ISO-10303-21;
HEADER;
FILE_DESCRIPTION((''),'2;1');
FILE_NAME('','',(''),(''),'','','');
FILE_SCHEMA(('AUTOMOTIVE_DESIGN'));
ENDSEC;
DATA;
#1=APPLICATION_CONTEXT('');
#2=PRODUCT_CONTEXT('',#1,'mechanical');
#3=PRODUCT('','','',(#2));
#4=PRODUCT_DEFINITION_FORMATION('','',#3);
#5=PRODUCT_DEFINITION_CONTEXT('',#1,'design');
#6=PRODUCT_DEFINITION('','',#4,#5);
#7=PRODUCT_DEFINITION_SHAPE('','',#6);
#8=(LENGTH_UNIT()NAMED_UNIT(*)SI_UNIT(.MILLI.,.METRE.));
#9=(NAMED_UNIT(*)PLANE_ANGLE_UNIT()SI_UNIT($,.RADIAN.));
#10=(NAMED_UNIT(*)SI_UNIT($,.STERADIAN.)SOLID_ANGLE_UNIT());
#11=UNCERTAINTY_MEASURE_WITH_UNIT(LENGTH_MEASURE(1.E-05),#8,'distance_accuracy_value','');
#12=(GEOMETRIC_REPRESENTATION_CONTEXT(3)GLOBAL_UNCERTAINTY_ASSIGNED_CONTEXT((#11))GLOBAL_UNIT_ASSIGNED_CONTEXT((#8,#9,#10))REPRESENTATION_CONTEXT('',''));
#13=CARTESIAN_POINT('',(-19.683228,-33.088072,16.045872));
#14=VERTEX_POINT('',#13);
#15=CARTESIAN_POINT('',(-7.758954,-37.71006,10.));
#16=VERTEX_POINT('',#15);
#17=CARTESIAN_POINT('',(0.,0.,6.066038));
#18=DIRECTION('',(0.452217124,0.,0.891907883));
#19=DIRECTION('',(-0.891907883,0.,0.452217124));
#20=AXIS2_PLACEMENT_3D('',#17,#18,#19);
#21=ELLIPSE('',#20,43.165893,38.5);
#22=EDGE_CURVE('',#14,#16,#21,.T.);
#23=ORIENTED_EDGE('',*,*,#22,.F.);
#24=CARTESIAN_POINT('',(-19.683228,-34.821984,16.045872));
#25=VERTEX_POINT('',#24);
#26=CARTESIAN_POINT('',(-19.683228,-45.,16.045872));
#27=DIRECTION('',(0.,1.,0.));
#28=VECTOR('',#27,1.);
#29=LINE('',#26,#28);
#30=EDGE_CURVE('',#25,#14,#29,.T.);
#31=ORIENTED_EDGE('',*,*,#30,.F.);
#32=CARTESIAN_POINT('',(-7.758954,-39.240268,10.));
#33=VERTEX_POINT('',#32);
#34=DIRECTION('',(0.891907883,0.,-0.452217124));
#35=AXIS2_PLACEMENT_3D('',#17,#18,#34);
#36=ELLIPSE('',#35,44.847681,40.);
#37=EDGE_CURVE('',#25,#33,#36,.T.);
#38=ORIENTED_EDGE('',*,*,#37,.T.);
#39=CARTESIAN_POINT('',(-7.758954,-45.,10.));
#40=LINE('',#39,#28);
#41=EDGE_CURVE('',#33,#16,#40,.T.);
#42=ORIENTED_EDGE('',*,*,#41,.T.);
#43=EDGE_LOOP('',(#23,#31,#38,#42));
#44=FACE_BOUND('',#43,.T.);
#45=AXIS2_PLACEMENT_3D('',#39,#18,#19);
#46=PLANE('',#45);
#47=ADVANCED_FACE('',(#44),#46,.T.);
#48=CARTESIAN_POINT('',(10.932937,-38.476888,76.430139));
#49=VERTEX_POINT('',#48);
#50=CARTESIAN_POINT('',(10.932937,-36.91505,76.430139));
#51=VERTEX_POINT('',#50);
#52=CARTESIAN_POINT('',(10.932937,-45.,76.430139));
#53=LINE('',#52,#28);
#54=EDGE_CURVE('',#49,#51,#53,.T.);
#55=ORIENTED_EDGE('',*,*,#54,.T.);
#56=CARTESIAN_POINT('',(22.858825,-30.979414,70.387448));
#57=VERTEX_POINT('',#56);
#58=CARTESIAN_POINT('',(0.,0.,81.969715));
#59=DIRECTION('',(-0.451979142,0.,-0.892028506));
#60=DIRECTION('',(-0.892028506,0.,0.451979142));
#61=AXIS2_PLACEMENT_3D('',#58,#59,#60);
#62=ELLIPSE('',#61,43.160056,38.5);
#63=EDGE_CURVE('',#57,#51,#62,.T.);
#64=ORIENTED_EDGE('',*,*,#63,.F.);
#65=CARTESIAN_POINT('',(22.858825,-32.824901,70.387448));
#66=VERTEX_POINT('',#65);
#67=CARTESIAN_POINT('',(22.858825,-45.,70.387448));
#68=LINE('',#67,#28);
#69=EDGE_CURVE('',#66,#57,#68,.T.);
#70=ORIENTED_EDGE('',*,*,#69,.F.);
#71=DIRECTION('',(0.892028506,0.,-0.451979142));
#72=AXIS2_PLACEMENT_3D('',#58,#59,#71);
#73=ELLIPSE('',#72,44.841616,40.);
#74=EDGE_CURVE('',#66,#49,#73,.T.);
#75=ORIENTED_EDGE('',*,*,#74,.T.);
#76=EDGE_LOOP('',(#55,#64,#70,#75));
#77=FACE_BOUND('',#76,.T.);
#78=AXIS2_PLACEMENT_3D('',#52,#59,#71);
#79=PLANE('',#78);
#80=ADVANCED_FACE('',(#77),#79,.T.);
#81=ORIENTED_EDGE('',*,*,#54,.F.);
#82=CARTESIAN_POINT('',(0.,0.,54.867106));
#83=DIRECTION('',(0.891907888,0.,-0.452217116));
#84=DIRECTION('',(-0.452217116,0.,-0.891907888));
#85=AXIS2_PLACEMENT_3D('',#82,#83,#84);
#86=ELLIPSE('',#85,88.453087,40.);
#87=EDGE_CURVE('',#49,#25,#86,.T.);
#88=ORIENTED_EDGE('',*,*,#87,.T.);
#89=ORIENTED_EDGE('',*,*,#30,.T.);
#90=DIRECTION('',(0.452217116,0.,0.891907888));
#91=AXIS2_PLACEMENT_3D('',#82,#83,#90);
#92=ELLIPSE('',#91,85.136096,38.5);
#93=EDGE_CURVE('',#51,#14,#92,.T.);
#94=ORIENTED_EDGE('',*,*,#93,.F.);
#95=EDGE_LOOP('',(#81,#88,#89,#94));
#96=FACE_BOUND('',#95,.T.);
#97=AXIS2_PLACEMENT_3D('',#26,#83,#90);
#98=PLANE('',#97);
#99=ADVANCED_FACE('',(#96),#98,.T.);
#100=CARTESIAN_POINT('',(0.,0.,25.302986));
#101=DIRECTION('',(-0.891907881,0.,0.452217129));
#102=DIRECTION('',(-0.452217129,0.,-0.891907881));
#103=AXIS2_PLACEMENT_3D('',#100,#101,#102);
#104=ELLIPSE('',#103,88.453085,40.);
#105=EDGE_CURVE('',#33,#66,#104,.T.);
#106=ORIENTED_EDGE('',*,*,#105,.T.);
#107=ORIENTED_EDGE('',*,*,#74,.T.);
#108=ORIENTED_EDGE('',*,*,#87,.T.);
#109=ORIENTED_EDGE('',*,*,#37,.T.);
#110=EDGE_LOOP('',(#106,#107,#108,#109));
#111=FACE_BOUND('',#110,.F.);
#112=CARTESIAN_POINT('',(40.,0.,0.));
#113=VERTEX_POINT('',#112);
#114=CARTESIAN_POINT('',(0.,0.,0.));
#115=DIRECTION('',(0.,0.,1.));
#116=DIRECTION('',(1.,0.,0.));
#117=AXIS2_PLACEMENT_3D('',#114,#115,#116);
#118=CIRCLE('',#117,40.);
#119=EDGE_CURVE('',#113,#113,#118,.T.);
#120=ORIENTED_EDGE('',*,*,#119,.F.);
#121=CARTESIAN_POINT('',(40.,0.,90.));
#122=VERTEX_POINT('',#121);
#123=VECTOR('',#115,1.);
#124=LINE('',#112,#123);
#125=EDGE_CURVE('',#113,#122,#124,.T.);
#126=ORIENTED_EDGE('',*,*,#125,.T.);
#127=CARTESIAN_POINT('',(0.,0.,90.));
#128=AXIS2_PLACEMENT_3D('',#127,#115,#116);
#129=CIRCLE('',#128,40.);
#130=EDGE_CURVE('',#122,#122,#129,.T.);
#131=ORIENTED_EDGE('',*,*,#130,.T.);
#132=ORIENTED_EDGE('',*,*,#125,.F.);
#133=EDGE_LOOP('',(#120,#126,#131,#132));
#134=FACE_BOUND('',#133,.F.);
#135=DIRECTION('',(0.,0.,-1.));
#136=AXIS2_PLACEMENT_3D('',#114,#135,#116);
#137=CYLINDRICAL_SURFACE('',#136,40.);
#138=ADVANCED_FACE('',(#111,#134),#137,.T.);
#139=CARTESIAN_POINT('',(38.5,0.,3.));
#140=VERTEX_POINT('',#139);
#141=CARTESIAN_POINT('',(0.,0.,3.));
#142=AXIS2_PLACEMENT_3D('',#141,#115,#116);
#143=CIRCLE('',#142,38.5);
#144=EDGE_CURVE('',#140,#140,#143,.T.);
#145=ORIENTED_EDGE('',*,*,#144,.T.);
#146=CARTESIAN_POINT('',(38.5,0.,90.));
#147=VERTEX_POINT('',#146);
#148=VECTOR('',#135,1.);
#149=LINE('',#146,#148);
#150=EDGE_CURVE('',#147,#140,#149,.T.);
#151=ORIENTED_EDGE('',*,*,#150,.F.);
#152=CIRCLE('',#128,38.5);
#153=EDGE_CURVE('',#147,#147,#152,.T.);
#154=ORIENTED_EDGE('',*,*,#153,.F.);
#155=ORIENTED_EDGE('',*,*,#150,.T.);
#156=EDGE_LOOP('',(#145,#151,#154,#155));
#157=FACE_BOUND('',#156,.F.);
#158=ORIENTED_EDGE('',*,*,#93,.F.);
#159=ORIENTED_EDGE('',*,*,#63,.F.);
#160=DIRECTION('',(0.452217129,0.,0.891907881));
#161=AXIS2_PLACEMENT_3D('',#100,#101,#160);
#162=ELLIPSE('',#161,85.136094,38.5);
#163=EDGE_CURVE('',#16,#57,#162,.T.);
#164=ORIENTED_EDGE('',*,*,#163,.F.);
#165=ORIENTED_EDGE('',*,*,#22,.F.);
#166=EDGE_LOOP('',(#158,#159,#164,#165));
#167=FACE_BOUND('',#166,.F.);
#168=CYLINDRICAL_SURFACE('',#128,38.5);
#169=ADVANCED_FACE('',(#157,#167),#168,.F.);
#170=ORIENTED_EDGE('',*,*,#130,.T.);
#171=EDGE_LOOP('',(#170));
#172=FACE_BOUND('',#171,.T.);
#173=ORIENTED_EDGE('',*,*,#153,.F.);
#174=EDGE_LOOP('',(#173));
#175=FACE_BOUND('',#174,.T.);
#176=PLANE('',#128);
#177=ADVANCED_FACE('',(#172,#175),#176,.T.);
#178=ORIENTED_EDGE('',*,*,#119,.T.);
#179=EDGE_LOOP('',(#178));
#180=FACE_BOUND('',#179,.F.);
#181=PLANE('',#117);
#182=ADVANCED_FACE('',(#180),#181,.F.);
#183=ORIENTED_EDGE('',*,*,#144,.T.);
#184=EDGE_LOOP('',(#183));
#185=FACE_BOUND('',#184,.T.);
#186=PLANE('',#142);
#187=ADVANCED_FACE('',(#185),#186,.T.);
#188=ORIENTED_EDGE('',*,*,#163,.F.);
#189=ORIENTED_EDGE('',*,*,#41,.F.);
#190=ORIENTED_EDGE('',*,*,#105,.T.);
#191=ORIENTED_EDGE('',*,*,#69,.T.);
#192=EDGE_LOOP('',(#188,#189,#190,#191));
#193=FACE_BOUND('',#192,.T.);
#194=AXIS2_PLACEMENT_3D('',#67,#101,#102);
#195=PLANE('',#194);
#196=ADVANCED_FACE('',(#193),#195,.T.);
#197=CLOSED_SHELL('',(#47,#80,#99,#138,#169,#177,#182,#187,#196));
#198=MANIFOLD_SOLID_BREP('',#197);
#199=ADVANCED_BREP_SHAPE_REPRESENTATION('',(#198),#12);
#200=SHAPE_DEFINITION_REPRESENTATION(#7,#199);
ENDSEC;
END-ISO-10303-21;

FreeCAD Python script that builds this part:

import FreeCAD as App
import Part
import Sketcher
from FreeCAD import Vector
Q = App.Units.Quantity


def add_polygon(sketch, points):
    """Adds a closed chain of lines whose ends are joined by coincident constraints."""
    first, n = sketch.GeometryCount, len(points)
    for a, b in zip(points, points[1:] + points[:1]):
        sketch.addGeometry(Part.LineSegment(App.Vector(*a, 0), App.Vector(*b, 0)), False)
    for i in range(n):
        sketch.addConstraint(Sketcher.Constraint("Coincident", first + i, 2, first + (i + 1) % n, 1))

doc = App.newDocument("Part")
params = doc.addObject("Spreadsheet::Sheet", "Params")
for row, (alias, value) in enumerate([
    ("sketch1_diameter", "80 mm"),
    ("pad1_length", "90 mm"),
    ("sketch2_diameter", "77 mm"),
    ("pocket1_length", "87 mm"),
    ("pocket2_length", "50 mm"),
], start=1):
    params.set(f"A{row}", alias)
    params.set(f"B{row}", "=" + value)
    params.setAlias(f"B{row}", alias)

body = doc.addObject("PartDesign::Body", "Body")

# Sketch on XY plane
sketch1 = body.newObject("Sketcher::SketchObject", "Sketch")
sketch1.AttachmentSupport = (doc.getObject("XY_Plane"), [""])
sketch1.MapMode = "FlatFace"
sketch1.addGeometry(Part.Circle(Vector(0, 0, 0), Vector(0, 0, 1), 40), False)
sketch1.addConstraint(Sketcher.Constraint("Coincident", 0, 3, -1, 1))
sketch1.addConstraint(Sketcher.Constraint("Diameter", 0, Q("80 mm")))
sketch1.setExpression("Constraints[1]", "Params.sketch1_diameter")
pad1 = body.newObject("PartDesign::Pad", "Pad")
pad1.Profile = sketch1
pad1.setExpression("Length", "Params.pad1_length")

# Sketch on XY plane
sketch2 = body.newObject("Sketcher::SketchObject", "Sketch001")
sketch2.AttachmentSupport = (doc.getObject("XY_Plane"), [""])
sketch2.MapMode = "FlatFace"
sketch2.AttachmentOffset = App.Placement(Vector(0, 0, 90), App.Rotation())
sketch2.addGeometry(Part.Circle(Vector(0, 0, 0), Vector(0, 0, 1), 38), False)
sketch2.addConstraint(Sketcher.Constraint("Coincident", 0, 3, -1, 1))
sketch2.addConstraint(Sketcher.Constraint("Diameter", 0, Q("77 mm")))
sketch2.setExpression("Constraints[1]", "Params.sketch2_diameter")
pocket1 = body.newObject("PartDesign::Pocket", "Pocket")
pocket1.Profile = sketch2
pocket1.setExpression("Length", "Params.pocket1_length")

# Sketch on XZ plane
sketch3 = body.newObject("Sketcher::SketchObject", "Sketch002")
sketch3.AttachmentSupport = (doc.getObject("XZ_Plane"), [""])
sketch3.MapMode = "FlatFace"
sketch3.AttachmentOffset = App.Placement(Vector(0, 0, 45), App.Rotation())
add_polygon(sketch3, [(11, 76), (-20, 16), (-8, 10), (23, 70)])  # lines 0-3
sketch3.addConstraint(Sketcher.Constraint("Perpendicular", 0, 1))
sketch3.addConstraint(Sketcher.Constraint("Perpendicular", 1, 2))
sketch3.addConstraint(Sketcher.Constraint("DistanceY", -1, 1, 1, 2, Q("10 mm")))
sketch3.addConstraint(Sketcher.Constraint("Distance", 1, Q("13.369401 mm")))
sketch3.addConstraint(Sketcher.Constraint("DistanceX", 0, 2, -1, 1, Q("19.683228 mm")))
sketch3.addConstraint(Sketcher.Constraint("DistanceY", -1, 1, 0, 2, Q("16.045872 mm")))
sketch3.addConstraint(Sketcher.Constraint("DistanceY", -1, 1, 2, 2, Q("70.387448 mm")))
sketch3.addConstraint(Sketcher.Constraint("DistanceY", -1, 1, 3, 2, Q("76.430139 mm")))
pocket2 = body.newObject("PartDesign::Pocket", "Pocket001")
pocket2.Profile = sketch3
pocket2.setExpression("Length", "Params.pocket2_length")

doc.recompute()
